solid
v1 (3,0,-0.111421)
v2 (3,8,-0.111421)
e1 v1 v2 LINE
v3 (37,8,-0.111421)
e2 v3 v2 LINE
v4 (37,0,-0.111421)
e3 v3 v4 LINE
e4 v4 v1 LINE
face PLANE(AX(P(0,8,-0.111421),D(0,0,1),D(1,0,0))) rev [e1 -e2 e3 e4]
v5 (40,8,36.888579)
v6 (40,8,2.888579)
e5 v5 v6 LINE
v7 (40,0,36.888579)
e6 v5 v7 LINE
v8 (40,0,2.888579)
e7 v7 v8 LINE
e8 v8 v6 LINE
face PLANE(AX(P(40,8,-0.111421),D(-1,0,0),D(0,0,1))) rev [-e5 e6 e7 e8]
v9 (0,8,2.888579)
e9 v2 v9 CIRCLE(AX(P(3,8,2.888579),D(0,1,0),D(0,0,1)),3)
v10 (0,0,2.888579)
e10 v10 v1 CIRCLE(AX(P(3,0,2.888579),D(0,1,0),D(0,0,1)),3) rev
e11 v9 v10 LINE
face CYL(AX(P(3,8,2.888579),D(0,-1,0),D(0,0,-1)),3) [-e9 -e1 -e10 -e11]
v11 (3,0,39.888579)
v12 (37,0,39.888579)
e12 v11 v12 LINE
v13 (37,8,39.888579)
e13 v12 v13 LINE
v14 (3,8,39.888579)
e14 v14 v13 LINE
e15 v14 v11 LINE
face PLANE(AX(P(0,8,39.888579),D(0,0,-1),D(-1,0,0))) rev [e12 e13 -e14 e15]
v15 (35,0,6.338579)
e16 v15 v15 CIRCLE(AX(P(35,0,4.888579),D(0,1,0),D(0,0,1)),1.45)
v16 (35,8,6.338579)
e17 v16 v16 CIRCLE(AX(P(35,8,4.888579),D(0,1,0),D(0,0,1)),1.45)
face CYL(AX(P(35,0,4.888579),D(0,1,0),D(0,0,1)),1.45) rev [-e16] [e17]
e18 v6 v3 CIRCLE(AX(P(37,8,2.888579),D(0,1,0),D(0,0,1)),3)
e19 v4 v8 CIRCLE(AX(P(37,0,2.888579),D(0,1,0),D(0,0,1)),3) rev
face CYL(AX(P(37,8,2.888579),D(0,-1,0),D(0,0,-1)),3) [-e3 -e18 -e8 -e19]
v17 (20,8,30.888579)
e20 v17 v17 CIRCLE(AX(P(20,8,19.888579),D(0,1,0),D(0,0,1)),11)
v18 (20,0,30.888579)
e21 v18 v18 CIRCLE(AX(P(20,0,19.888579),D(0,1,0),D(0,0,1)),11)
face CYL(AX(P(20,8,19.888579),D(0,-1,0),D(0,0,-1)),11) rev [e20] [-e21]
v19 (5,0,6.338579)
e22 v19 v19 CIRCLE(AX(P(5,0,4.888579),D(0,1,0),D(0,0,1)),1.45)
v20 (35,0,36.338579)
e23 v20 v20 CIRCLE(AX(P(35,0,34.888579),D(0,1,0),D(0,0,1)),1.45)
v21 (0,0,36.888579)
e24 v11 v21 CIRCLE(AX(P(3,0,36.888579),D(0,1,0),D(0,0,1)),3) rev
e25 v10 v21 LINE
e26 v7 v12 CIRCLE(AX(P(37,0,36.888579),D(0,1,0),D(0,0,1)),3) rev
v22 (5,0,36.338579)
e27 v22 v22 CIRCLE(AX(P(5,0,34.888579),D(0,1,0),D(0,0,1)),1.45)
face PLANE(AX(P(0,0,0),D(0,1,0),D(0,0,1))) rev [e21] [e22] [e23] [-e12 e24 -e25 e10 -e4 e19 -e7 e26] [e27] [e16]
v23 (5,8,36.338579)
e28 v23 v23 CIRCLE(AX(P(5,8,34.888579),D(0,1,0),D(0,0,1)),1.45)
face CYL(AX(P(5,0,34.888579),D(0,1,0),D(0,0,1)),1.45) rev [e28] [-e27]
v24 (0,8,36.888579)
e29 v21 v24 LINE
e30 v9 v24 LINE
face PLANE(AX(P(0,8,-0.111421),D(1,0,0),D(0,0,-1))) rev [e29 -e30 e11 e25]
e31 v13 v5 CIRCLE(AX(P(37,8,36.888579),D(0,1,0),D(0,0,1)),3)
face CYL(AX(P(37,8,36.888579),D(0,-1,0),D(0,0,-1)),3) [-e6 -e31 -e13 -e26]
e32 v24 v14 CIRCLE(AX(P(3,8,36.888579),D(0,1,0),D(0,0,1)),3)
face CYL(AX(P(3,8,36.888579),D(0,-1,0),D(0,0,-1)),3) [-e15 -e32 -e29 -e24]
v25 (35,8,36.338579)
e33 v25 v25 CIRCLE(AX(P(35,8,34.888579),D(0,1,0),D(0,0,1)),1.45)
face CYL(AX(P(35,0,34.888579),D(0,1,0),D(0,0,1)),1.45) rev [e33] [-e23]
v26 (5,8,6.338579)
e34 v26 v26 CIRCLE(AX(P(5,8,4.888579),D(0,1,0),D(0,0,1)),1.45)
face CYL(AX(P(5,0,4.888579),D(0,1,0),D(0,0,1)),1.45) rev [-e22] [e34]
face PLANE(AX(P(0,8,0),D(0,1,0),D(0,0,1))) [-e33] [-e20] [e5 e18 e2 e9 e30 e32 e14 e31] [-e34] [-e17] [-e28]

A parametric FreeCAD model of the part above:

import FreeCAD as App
import Part
import Sketcher

V = App.Vector


def edges_at(feature, points):
    """Names of the edges that pass closest to the given points."""
    edges = feature.Shape.Edges
    near = lambda p: min(range(len(edges)), key=lambda i: edges[i].distToShape(Part.Vertex(*p))[0])
    return sorted({f"Edge{near(p) + 1}" for p in points})

doc = App.newDocument("Part")
body = doc.addObject("PartDesign::Body", "Body")

# Sketch on XZ plane
sketch1 = doc.addObject("Sketcher::SketchObject", "Sketch")
body.addObject(sketch1)
sketch1.AttachmentSupport = (doc.XZ_Plane, [""])
sketch1.MapMode = "FlatFace"
sketch1.addGeometry([
    Part.LineSegment(V(0, -0.111421, 0), V(0, 39.888579, 0)),  # 0
    Part.LineSegment(V(0, 39.888579, 0), V(40, 39.888579, 0)),  # 1
    Part.LineSegment(V(40, 39.888579, 0), V(40, -0.111421, 0)),  # 2
    Part.LineSegment(V(40, -0.111421, 0), V(0, -0.111421, 0)),  # 3
    Part.Circle(V(20, 19.888579, 0), V(0, 0, 1), 11),  # 4
], False)
sketch1.addConstraint([
    Sketcher.Constraint("Coincident", 0, 2, 1, 1),
    Sketcher.Constraint("Coincident", 1, 2, 2, 1),
    Sketcher.Constraint("Coincident", 2, 2, 3, 1),
    Sketcher.Constraint("Coincident", 3, 2, 0, 1),
    Sketcher.Constraint("Vertical", 0),
    Sketcher.Constraint("Horizontal", 1),
    Sketcher.Constraint("Vertical", 2),
    Sketcher.Constraint("Horizontal", 3),
    Sketcher.Constraint("PointOnObject", 0, 2, -2),
    Sketcher.Constraint("Equal", 3, 0),
    Sketcher.Constraint("Diameter", 4, 22.0),
    Sketcher.Constraint("DistanceX", 1, 1, 1, 2, 40.0),
    Sketcher.Constraint("DistanceX", -1, 1, 4, 3, 20.0),
    Sketcher.Constraint("DistanceY", 4, 3, 0, 2, 20.0),
    Sketcher.Constraint("DistanceY", -1, 1, 4, 3, 19.888579),
])
pad1 = doc.addObject("PartDesign::Pad", "Pad")
body.addObject(pad1)
pad1.Profile = sketch1
pad1.Length = 8
pad1.Reversed = True

# Sketch on XZ plane
sketch2 = doc.addObject("Sketcher::SketchObject", "Sketch001")
body.addObject(sketch2)
sketch2.AttachmentSupport = (doc.XZ_Plane, [""])
sketch2.MapMode = "FlatFace"
sketch2.AttachmentOffset = App.Placement(V(0, 0, -8), App.Rotation())
sketch2.addGeometry([
    Part.Circle(V(5, 4.888579, 0), V(0, 0, 1), 1.45),
    Part.Circle(V(35, 4.888579, 0), V(0, 0, 1), 1.45),
    Part.Circle(V(35, 34.888579, 0), V(0, 0, 1), 1.45),
    Part.Circle(V(5, 34.888579, 0), V(0, 0, 1), 1.45),
], False)
sketch2.addConstraint([
    Sketcher.Constraint("Equal", 0, 1),
    Sketcher.Constraint("Equal", 1, 2),
    Sketcher.Constraint("Equal", 2, 3),
    Sketcher.Constraint("Horizontal", 0, 3, 1, 3),
    Sketcher.Constraint("Horizontal", 2, 3, 3, 3),
    Sketcher.Constraint("Vertical", 1, 3, 2, 3),
    Sketcher.Constraint("Vertical", 0, 3, 3, 3),
    Sketcher.Constraint("Diameter", 0, 2.9),
    Sketcher.Constraint("DistanceX", -1, 1, 0, 3, 5.0),
    Sketcher.Constraint("DistanceX", -1, 1, 1, 3, 35.0),
    Sketcher.Constraint("DistanceY", 1, 3, 2, 3, 30.0),
    Sketcher.Constraint("DistanceY", -1, 1, 0, 3, 4.888579),
])
pocket1 = doc.addObject("PartDesign::Pocket", "Pocket")
body.addObject(pocket1)
pocket1.Profile = sketch2
pocket1.Type = "ThroughAll"
pocket1.Reversed = True
doc.recompute()

fillet = doc.addObject("PartDesign::Fillet", "Fillet")
body.addObject(fillet)
fillet.Base = (pocket1, edges_at(pocket1, [
    (0, 4, -0.111),
    (40, 4, -0.111),
    (40, 4, 39.889),
    (0, 4, 39.889),
]))
fillet.Radius = 3

doc.recompute()
